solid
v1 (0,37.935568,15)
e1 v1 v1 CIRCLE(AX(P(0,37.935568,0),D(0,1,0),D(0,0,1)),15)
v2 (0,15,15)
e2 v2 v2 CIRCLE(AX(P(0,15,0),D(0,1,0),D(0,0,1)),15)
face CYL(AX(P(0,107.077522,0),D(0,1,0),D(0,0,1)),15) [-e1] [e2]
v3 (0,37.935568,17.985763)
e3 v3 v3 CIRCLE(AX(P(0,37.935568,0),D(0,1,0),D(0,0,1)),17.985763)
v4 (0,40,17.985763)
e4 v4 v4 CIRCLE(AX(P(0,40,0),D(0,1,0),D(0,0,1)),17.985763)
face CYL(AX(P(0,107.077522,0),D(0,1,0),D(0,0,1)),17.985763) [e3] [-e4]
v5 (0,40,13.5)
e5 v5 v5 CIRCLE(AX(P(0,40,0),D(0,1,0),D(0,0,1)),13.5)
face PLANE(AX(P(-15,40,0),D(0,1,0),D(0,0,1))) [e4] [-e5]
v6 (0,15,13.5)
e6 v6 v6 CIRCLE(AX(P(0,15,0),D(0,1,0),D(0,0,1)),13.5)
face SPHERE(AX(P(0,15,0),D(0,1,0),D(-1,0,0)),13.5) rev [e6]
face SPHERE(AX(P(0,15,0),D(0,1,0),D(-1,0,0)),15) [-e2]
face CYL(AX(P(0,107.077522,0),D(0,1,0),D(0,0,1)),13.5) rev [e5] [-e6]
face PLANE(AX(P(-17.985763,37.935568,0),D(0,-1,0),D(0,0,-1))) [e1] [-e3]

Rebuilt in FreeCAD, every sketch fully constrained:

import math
import FreeCAD as App
import Part
import Sketcher
Q = App.Units.Quantity

doc = App.newDocument("Part")
body = doc.addObject("PartDesign::Body", "Body")

sketch1 = body.newObject("Sketcher::SketchObject", "Sketch")
sketch1.AttachmentSupport = (doc.getObject("XY_Plane"), [""])
sketch1.MapMode = "FlatFace"
sketch1.addGeometry([
    Part.LineSegment(App.Vector(-13.5, 15, 0), App.Vector(-13.5, 40, 0)),
    Part.LineSegment(App.Vector(-13.5, 40, 0), App.Vector(-18, 40, 0)),
    Part.LineSegment(App.Vector(-18, 40, 0), App.Vector(-18, 37.9, 0)),
    Part.LineSegment(App.Vector(-18, 37.9, 0), App.Vector(-15, 37.9, 0)),
    Part.LineSegment(App.Vector(-15, 37.9, 0), App.Vector(-15, 15, 0)),
    Part.ArcOfCircle(Part.Circle(App.Vector(0, 15, 0), App.Vector(0, 0, 1), 15), math.radians(180), math.radians(270)),
    Part.LineSegment(App.Vector(0, 0, 0), App.Vector(0, 1.5, 0)),
    Part.ArcOfCircle(Part.Circle(App.Vector(0, 15, 0), App.Vector(0, 0, 1), 13.5), math.radians(180), math.radians(270)),
], False)
sketch1.addConstraint([
    Sketcher.Constraint("Coincident", 0, 2, 1, 1),
    Sketcher.Constraint("Coincident", 1, 2, 2, 1),
    Sketcher.Constraint("Coincident", 2, 2, 3, 1),
    Sketcher.Constraint("Coincident", 3, 2, 4, 1),
    Sketcher.Constraint("Tangent", 4, 2, 5, 1),
    Sketcher.Constraint("Coincident", 5, 2, 6, 1),
    Sketcher.Constraint("Coincident", 6, 2, 7, 2),
    Sketcher.Constraint("Tangent", 7, 1, 0, 1),
    Sketcher.Constraint("Vertical", 0),
    Sketcher.Constraint("Horizontal", 1),
    Sketcher.Constraint("Vertical", 2),
    Sketcher.Constraint("Horizontal", 3),
    Sketcher.Constraint("Vertical", 4),
    Sketcher.Constraint("Vertical", 6),
    Sketcher.Constraint("Coincident", 5, 2, -1, 1),
    Sketcher.Constraint("Coincident", 7, 3, 5, 3),
    Sketcher.Constraint("PointOnObject", 5, 3, -2),
    Sketcher.Constraint("Radius", 5, Q("15 mm")),
    Sketcher.Constraint("Radius", 7, Q("13.5 mm")),
    Sketcher.Constraint("DistanceY", 0, 1, 0, 2, Q("25 mm")),
    Sketcher.Constraint("DistanceY", 2, 2, 2, 1, Q("2.064432 mm")),
    Sketcher.Constraint("DistanceX", 1, 2, 1, 1, Q("4.485763 mm")),
])
revolution = body.newObject("PartDesign::Revolution", "Revolution")
revolution.Profile = sketch1
revolution.ReferenceAxis = (sketch1, ["V_Axis"])
revolution.Angle = 360

doc.recompute()
